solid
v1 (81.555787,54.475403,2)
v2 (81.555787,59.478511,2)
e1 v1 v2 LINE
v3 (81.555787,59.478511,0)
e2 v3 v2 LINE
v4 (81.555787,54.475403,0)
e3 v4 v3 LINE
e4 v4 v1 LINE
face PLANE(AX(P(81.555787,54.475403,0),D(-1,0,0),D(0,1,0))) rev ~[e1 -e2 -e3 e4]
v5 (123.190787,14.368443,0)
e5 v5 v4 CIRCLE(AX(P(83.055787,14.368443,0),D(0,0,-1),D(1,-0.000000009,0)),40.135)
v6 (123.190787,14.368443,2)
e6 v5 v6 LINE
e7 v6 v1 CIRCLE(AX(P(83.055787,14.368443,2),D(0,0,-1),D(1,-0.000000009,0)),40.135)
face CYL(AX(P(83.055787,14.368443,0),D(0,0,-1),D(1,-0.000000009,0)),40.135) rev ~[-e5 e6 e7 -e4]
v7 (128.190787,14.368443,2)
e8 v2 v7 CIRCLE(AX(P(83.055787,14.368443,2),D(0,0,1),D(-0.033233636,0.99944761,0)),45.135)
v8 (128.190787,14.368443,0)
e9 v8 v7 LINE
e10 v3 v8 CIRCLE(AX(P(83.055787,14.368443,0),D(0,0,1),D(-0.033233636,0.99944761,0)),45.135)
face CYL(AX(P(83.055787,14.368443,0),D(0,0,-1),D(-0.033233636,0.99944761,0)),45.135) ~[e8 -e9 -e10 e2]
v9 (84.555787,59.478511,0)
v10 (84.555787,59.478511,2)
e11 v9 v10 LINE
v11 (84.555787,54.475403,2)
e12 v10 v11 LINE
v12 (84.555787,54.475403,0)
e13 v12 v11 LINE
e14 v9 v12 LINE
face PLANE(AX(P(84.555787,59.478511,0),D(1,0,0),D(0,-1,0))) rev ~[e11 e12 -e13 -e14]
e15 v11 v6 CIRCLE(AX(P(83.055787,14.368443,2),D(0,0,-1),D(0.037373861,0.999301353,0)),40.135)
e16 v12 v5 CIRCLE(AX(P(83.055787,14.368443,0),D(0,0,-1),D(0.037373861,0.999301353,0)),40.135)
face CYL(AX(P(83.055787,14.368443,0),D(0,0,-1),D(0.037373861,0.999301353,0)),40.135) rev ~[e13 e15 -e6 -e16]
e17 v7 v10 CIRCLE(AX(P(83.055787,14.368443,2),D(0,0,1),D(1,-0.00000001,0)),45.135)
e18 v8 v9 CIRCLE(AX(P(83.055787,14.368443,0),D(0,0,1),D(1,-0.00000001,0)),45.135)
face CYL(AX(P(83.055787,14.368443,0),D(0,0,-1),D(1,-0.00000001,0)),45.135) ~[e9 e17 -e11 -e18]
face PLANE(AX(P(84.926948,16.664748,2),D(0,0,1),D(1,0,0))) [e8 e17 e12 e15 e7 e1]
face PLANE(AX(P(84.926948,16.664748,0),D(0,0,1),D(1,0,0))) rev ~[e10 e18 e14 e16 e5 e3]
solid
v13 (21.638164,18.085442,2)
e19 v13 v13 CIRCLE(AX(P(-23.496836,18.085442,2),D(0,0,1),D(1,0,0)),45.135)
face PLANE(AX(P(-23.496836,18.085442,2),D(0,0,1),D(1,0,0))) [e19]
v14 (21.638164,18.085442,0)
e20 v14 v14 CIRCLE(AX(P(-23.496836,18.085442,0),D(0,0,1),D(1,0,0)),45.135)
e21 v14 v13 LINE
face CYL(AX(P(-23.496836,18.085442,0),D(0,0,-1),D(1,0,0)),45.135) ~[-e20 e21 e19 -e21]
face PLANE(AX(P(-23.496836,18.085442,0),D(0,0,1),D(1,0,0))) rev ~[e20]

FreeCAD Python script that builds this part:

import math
import FreeCAD as App
import Part
import Sketcher

V = App.Vector

doc = App.newDocument("Part")
body = doc.addObject("PartDesign::Body", "Body")

# Sketch on XY plane
sketch1 = body.newObject("Sketcher::SketchObject", "Sketch")
sketch1.AttachmentSupport = (doc.getObject("XY_Plane"), [""])
sketch1.MapMode = "FlatFace"
sketch1.addGeometry(Part.Circle(V(-23, 18, 0), V(0, 0, 1), 45), False)
sketch1.addConstraint(Sketcher.Constraint("Diameter", 0, 90.27))
sketch1.addConstraint(Sketcher.Constraint("DistanceX", 0, 3, -1, 1, 23.496836))
sketch1.addConstraint(Sketcher.Constraint("DistanceY", -1, 1, 0, 3, 18.085442))
pad1 = body.newObject("PartDesign::Pad", "Pad")
pad1.Profile = sketch1
pad1.Length = 2
body2 = doc.addObject("PartDesign::Body", "Body001")

# Sketch on XY plane
sketch2 = body2.newObject("Sketcher::SketchObject", "Sketch001")
sketch2.AttachmentSupport = (doc.getObject("XY_Plane001"), [""])
sketch2.MapMode = "FlatFace"
sketch2.addGeometry(Part.ArcOfCircle(Part.Circle(V(83, 14, 0), V(0, 0, 1), 45), math.radians(92), math.radians(360)), False)
sketch2.addGeometry(Part.ArcOfCircle(Part.Circle(V(83, 14, 0), V(0, 0, 1), 45), math.radians(0), math.radians(88)), False)
sketch2.addGeometry(Part.LineSegment(V(85, 59, 0), V(85, 54, 0)), False)
sketch2.addGeometry(Part.ArcOfCircle(Part.Circle(V(83, 14, 0), V(0, 0, 1), 40), math.radians(0), math.radians(88)), False)
sketch2.addGeometry(Part.ArcOfCircle(Part.Circle(V(83, 14, 0), V(0, 0, 1), 40), math.radians(92), math.radians(360)), False)
sketch2.addGeometry(Part.LineSegment(V(82, 54, 0), V(82, 59, 0)), False)
sketch2.addConstraint(Sketcher.Constraint("Tangent", 0, 2, 1, 1))
sketch2.addConstraint(Sketcher.Constraint("Coincident", 1, 2, 2, 1))
sketch2.addConstraint(Sketcher.Constraint("Coincident", 2, 2, 3, 2))
sketch2.addConstraint(Sketcher.Constraint("Tangent", 3, 1, 4, 2))
sketch2.addConstraint(Sketcher.Constraint("Coincident", 4, 1, 5, 1))
sketch2.addConstraint(Sketcher.Constraint("Coincident", 5, 2, 0, 1))
sketch2.addConstraint(Sketcher.Constraint("Vertical", 2))
sketch2.addConstraint(Sketcher.Constraint("Vertical", 5))
sketch2.addConstraint(Sketcher.Constraint("Coincident", 3, 3, 0, 3))
sketch2.addConstraint(Sketcher.Constraint("Equal", 0, 1))
sketch2.addConstraint(Sketcher.Constraint("Equal", 3, 4))
sketch2.addConstraint(Sketcher.Constraint("Horizontal", 4, 3, 0, 2))
sketch2.addConstraint(Sketcher.Constraint("Horizontal", 0, 2, 3, 1))
sketch2.addConstraint(Sketcher.Constraint("Horizontal", 2, 2, 4, 1))
sketch2.addConstraint(Sketcher.Constraint("Radius", 0, 45.135))
sketch2.addConstraint(Sketcher.Constraint("Radius", 3, 40.135))
sketch2.addConstraint(Sketcher.Constraint("DistanceX", 4, 1, 2, 2, 3.0))
sketch2.addConstraint(Sketcher.Constraint("DistanceY", -1, 1, 1, 2, 59.478511))
sketch2.addConstraint(Sketcher.Constraint("DistanceX", -1, 1, 0, 3, 83.055787))
pad2 = body2.newObject("PartDesign::Pad", "Pad001")
pad2.Profile = sketch2
pad2.Length = 2

doc.recompute()
